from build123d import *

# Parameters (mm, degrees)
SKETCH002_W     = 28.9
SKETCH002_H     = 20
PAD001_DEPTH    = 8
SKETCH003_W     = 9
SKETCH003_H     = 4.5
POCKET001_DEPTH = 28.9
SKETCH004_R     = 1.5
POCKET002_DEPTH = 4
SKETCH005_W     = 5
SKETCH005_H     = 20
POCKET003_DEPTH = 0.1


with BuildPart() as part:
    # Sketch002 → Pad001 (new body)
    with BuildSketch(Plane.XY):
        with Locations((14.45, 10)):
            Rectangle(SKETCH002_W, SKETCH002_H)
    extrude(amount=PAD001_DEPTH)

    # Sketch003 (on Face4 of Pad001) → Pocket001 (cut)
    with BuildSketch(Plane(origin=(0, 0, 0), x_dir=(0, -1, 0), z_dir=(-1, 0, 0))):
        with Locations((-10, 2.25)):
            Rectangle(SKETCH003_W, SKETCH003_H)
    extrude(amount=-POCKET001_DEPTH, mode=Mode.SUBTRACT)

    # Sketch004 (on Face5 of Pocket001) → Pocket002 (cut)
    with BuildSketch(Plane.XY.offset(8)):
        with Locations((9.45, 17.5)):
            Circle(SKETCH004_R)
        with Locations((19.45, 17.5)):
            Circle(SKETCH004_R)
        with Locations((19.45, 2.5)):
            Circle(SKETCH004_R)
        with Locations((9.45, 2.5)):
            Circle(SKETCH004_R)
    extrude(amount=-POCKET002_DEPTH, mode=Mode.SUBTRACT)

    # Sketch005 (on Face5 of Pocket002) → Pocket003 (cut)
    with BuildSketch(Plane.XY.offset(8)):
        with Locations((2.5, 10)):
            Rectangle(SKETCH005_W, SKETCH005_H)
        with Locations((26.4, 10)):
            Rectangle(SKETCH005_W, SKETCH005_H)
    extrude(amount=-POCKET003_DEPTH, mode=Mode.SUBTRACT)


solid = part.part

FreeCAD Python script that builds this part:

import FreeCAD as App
import Part
import Sketcher
from FreeCAD import Vector


def add_polygon(sketch, points):
    """Adds a closed chain of lines whose ends are joined by coincident constraints."""
    first, n = sketch.GeometryCount, len(points)
    for a, b in zip(points, points[1:] + points[:1]):
        sketch.addGeometry(Part.LineSegment(App.Vector(*a, 0), App.Vector(*b, 0)), False)
    for i in range(n):
        sketch.addConstraint(Sketcher.Constraint("Coincident", first + i, 2, first + (i + 1) % n, 1))

doc = App.newDocument("Part")
body = doc.addObject("PartDesign::Body", "Body")

sketch1 = body.newObject("Sketcher::SketchObject", "Sketch")
sketch1.AttachmentSupport = (doc.getObject("XY_Plane"), [""])
sketch1.MapMode = "FlatFace"
add_polygon(sketch1, [(0, 20), (0, 0), (29, 0), (29, 20)])
sketch1.addConstraint([
    Sketcher.Constraint("Vertical", 0),
    Sketcher.Constraint("Horizontal", 1),
    Sketcher.Constraint("Vertical", 2),
    Sketcher.Constraint("Horizontal", 3),
    Sketcher.Constraint("Coincident", 0, 2, -1, 1),
    Sketcher.Constraint("DistanceY", 0, 2, 0, 1, 20.0),
    Sketcher.Constraint("DistanceX", 1, 1, 1, 2, 28.9),
])
pad1 = body.newObject("PartDesign::Pad", "Pad")
pad1.Profile = sketch1
pad1.Length = 8

sketch2 = body.newObject("Sketcher::SketchObject", "Sketch001")
sketch2.AttachmentSupport = (doc.getObject("YZ_Plane"), [""])
sketch2.MapMode = "FlatFace"
add_polygon(sketch2, [(14.5, 4.5), (14.5, 0), (5.5, 0), (5.5, 4.5)])
sketch2.addConstraint([
    Sketcher.Constraint("Vertical", 0),
    Sketcher.Constraint("Horizontal", 1),
    Sketcher.Constraint("Vertical", 2),
    Sketcher.Constraint("Horizontal", 3),
    Sketcher.Constraint("PointOnObject", 0, 2, -1),
    Sketcher.Constraint("DistanceX", 1, 2, 1, 1, 9.0),
    Sketcher.Constraint("DistanceY", 0, 2, 0, 1, 4.5),
    Sketcher.Constraint("DistanceX", -1, 1, 0, 2, 14.5),
])
pocket1 = body.newObject("PartDesign::Pocket", "Pocket")
pocket1.Profile = sketch2
pocket1.Length = 28.9
pocket1.Reversed = True

sketch3 = body.newObject("Sketcher::SketchObject", "Sketch002")
sketch3.AttachmentSupport = (doc.getObject("XY_Plane"), [""])
sketch3.MapMode = "FlatFace"
sketch3.AttachmentOffset = App.Placement(Vector(0, 0, 8), App.Rotation())
sketch3.addGeometry([
    Part.Circle(Vector(9.4, 17.5, 0), Vector(0, 0, 1), 1.5),
    Part.Circle(Vector(19.4, 17.5, 0), Vector(0, 0, 1), 1.5),
    Part.Circle(Vector(19.4, 2.5, 0), Vector(0, 0, 1), 1.5),
    Part.Circle(Vector(9.4, 2.5, 0), Vector(0, 0, 1), 1.5),
], False)
sketch3.addConstraint([
    Sketcher.Constraint("Equal", 0, 1),
    Sketcher.Constraint("Equal", 1, 2),
    Sketcher.Constraint("Equal", 2, 3),
    Sketcher.Constraint("Horizontal", 0, 3, 1, 3),
    Sketcher.Constraint("Horizontal", 2, 3, 3, 3),
    Sketcher.Constraint("Vertical", 1, 3, 2, 3),
    Sketcher.Constraint("Vertical", 0, 3, 3, 3),
    Sketcher.Constraint("Diameter", 0, 3.0),
    Sketcher.Constraint("DistanceX", 0, 3, 1, 3, 10.0),
    Sketcher.Constraint("DistanceY", 2, 3, 1, 3, 15.0),
    Sketcher.Constraint("DistanceY", -1, 1, 0, 3, 17.5),
    Sketcher.Constraint("DistanceX", -1, 1, 0, 3, 9.45),
])
pocket2 = body.newObject("PartDesign::Pocket", "Pocket001")
pocket2.Profile = sketch3
pocket2.Length = 4

sketch4 = body.newObject("Sketcher::SketchObject", "Sketch003")
sketch4.AttachmentSupport = (doc.getObject("XY_Plane"), [""])
sketch4.MapMode = "FlatFace"
sketch4.AttachmentOffset = App.Placement(Vector(0, 0, 8), App.Rotation())
add_polygon(sketch4, [(0, 20), (0, 0), (5, 0), (5, 20)])
add_polygon(sketch4, [(24, 20), (24, 0), (29, 0), (29, 20)])
sketch4.addConstraint([
    Sketcher.Constraint("Vertical", 0),
    Sketcher.Constraint("Horizontal", 1),
    Sketcher.Constraint("Vertical", 2),
    Sketcher.Constraint("Horizontal", 3),
    Sketcher.Constraint("Vertical", 4),
    Sketcher.Constraint("Horizontal", 5),
    Sketcher.Constraint("Vertical", 6),
    Sketcher.Constraint("Horizontal", 7),
    Sketcher.Constraint("Coincident", 0, 2, -1, 1),
    Sketcher.Constraint("PointOnObject", 4, 2, -1),
    Sketcher.Constraint("Horizontal", 3, 2, 6, 2),
    Sketcher.Constraint("Equal", 3, 5),
    Sketcher.Constraint("DistanceX", 1, 1, 1, 2, 5.0),
    Sketcher.Constraint("DistanceY", 0, 2, 0, 1, 20.0),
    Sketcher.Constraint("DistanceX", -1, 1, 4, 2, 23.9),
])
pocket3 = body.newObject("PartDesign::Pocket", "Pocket002")
pocket3.Profile = sketch4
pocket3.Length = 0.1

doc.recompute()
